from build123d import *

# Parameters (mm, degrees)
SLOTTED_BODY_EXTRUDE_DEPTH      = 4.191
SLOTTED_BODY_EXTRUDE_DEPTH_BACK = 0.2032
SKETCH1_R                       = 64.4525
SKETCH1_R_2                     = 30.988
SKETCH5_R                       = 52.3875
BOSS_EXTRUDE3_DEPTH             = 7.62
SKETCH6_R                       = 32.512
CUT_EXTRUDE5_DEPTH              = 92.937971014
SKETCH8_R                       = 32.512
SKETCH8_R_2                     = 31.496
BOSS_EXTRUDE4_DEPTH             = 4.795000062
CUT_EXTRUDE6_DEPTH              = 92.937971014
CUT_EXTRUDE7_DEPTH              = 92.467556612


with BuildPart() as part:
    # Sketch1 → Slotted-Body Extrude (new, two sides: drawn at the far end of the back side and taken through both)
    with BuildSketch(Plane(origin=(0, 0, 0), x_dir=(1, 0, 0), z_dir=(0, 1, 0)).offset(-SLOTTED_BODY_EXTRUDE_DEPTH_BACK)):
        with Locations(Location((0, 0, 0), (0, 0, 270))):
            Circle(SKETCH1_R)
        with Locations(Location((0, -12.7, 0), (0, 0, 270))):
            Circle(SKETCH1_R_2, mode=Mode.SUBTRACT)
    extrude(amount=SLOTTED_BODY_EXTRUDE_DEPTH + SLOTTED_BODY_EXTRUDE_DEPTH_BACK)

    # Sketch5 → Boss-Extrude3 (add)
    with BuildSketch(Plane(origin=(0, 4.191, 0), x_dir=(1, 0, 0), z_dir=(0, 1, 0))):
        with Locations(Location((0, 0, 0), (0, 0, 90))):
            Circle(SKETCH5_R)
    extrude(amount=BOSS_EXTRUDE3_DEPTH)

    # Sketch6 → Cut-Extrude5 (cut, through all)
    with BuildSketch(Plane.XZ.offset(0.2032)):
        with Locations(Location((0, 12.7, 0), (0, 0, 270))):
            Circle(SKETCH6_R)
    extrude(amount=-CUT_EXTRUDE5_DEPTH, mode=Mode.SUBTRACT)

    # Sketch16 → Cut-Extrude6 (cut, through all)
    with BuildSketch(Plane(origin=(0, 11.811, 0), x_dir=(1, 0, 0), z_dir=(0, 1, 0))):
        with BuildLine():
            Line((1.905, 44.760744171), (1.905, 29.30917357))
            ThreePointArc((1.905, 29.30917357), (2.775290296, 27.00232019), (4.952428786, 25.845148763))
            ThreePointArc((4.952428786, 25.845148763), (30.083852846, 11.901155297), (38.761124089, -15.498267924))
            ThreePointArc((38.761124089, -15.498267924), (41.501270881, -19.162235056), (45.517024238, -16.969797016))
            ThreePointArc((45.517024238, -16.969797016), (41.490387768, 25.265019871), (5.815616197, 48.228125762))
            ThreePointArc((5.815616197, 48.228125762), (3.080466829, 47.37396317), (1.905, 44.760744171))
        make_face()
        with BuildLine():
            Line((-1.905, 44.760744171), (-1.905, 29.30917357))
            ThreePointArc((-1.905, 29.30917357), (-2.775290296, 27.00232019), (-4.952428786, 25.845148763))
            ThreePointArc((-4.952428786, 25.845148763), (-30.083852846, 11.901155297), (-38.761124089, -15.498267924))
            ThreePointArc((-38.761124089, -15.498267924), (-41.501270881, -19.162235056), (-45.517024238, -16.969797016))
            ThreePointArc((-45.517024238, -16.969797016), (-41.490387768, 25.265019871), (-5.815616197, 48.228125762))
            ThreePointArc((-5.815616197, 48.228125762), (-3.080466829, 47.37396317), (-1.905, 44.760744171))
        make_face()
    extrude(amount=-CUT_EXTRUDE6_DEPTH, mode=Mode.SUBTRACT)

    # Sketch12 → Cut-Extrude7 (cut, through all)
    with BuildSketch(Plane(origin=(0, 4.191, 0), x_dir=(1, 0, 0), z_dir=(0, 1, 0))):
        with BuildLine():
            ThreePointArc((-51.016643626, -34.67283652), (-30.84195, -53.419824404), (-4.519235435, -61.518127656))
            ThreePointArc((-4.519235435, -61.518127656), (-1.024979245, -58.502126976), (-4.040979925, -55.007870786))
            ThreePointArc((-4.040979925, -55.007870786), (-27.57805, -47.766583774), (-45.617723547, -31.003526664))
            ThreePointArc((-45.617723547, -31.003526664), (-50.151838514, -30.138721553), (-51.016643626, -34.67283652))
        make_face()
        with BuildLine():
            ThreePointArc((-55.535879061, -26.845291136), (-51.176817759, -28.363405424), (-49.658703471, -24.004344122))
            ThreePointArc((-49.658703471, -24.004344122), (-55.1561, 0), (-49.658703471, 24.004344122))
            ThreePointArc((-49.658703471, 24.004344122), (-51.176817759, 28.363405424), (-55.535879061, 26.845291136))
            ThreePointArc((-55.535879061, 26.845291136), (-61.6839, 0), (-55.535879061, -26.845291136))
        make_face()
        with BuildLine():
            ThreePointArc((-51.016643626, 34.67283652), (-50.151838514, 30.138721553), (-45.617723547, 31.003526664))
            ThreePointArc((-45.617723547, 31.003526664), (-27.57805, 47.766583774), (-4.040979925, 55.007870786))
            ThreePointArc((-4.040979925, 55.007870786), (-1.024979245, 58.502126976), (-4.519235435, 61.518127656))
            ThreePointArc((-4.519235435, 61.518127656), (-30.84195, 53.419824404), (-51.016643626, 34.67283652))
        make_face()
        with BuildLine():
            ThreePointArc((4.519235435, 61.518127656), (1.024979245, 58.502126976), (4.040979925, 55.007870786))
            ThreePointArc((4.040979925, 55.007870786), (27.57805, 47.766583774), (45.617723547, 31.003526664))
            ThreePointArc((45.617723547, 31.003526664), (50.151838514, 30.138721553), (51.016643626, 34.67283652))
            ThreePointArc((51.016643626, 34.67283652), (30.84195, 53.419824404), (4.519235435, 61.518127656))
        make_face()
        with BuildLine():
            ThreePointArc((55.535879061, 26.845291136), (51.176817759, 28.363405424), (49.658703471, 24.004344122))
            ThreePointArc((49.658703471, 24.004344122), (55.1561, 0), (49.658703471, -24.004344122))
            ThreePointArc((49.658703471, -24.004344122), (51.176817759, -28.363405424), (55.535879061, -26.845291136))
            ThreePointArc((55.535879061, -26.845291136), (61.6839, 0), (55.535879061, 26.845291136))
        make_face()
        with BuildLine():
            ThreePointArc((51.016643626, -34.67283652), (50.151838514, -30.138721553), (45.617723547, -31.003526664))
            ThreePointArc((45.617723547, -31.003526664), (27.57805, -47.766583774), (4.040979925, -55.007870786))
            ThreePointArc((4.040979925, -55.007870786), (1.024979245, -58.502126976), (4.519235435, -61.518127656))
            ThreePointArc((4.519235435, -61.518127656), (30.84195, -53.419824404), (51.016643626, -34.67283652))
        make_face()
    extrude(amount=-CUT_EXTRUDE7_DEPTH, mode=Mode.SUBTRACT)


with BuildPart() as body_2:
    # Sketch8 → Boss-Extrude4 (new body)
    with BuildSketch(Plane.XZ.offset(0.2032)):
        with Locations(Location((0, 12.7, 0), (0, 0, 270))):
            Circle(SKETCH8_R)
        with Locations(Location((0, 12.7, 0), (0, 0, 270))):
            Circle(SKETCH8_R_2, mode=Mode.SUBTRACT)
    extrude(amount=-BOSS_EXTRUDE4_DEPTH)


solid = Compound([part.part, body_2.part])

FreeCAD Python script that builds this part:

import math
import FreeCAD as App
import Part
import Sketcher

V = App.Vector
Q = App.Units.Quantity

doc = App.newDocument("Part")
body = doc.addObject("PartDesign::Body", "Body")

# Sketch on XZ plane
sketch1 = body.newObject("Sketcher::SketchObject", "Sketch")
sketch1.AttachmentSupport = (doc.getObject("XZ_Plane"), [""])
sketch1.MapMode = "FlatFace"
sketch1.addGeometry(Part.Circle(V(0, 0, 0), V(0, 0, 1), 64.4525), False)
sketch1.addGeometry(Part.Circle(V(0, 12.7, 0), V(0, 0, 1), 30.988), False)
sketch1.addConstraint(Sketcher.Constraint("Coincident", 0, 3, -1, 1))
sketch1.addConstraint(Sketcher.Constraint("PointOnObject", 1, 3, -2))
sketch1.addConstraint(Sketcher.Constraint("Diameter", 1, Q("2.44 in")))
sketch1.addConstraint(Sketcher.Constraint("Diameter", 0, Q("5.075 in")))
sketch1.addConstraint(Sketcher.Constraint("DistanceY", -1, 1, 1, 3, Q("0.5 in")))
pad1 = body.newObject("PartDesign::Pad", "Pad")
pad1.Profile = sketch1
pad1.Type = "TwoLengths"
pad1.Length = Q("0.165 in")
pad1.Length2 = Q("0.008 in")
pad1.Reversed = True

# Sketch on XZ plane
sketch2 = body.newObject("Sketcher::SketchObject", "Sketch001")
sketch2.AttachmentSupport = (doc.getObject("XZ_Plane"), [""])
sketch2.MapMode = "FlatFace"
sketch2.AttachmentOffset = App.Placement(V(0, 0, -0.165 * 25.4), App.Rotation())
sketch2.addGeometry(Part.Circle(V(0, 0, 0), V(0, 0, 1), 52.3875), False)
sketch2.addConstraint(Sketcher.Constraint("Coincident", 0, 3, -1, 1))
sketch2.addConstraint(Sketcher.Constraint("Diameter", 0, Q("4.125 in")))
pad2 = body.newObject("PartDesign::Pad", "Pad001")
pad2.Profile = sketch2
pad2.Length = Q("0.3 in")
pad2.Reversed = True

# Sketch on XZ plane
sketch3 = body.newObject("Sketcher::SketchObject", "Sketch002")
sketch3.AttachmentSupport = (doc.getObject("XZ_Plane"), [""])
sketch3.MapMode = "FlatFace"
sketch3.AttachmentOffset = App.Placement(V(0, 0, 0.008 * 25.4), App.Rotation())
sketch3.addGeometry(Part.Circle(V(0, 12.7, 0), V(0, 0, 1), 32.512), False)
sketch3.addConstraint(Sketcher.Constraint("PointOnObject", 0, 3, -2))
sketch3.addConstraint(Sketcher.Constraint("Diameter", 0, Q("2.56 in")))
sketch3.addConstraint(Sketcher.Constraint("DistanceY", -1, 1, 0, 3, Q("0.5 in")))
pocket1 = body.newObject("PartDesign::Pocket", "Pocket")
pocket1.Profile = sketch3
pocket1.Type = "ThroughAll"

# Sketch on XZ plane
sketch4 = body.newObject("Sketcher::SketchObject", "Sketch003")
sketch4.AttachmentSupport = (doc.getObject("XZ_Plane"), [""])
sketch4.MapMode = "FlatFace"
sketch4.AttachmentOffset = App.Placement(V(0, 0, -0.465 * 25.4), App.Rotation())
sketch4.addGeometry(Part.LineSegment(V(1.905, -44.760744, 0), V(1.905, -29.309174, 0)), False)
sketch4.addGeometry(Part.ArcOfCircle(Part.Circle(V(5.3975, -29.309174, 0), V(0, 0, 1), 3.4925), math.radians(97.32147), math.radians(180)), False)
sketch4.addGeometry(Part.ArcOfCircle(Part.Circle(V(0, 12.7, 0), V(0, 0, 1), 38.862), math.radians(-82.67853), math.radians(4.12917)), False)
sketch4.addGeometry(Part.ArcOfCircle(Part.Circle(V(42.244558, 15.749746, 0), V(0, 0, 1), 3.4925), math.radians(20.446616), math.radians(184.12917)), False)
sketch4.addGeometry(Part.ArcOfCircle(Part.Circle(V(0, 0, 0), V(0, 0, 1), 48.5775), math.radians(-83.124154), math.radians(20.446616)), False)
sketch4.addGeometry(Part.ArcOfCircle(Part.Circle(V(5.3975, -44.760744, 0), V(0, 0, 1), 3.4925), math.radians(180), math.radians(276.875846)), False)
sketch4.addGeometry(Part.LineSegment(V(-1.905, -29.309174, 0), V(-1.905, -44.760744, 0)), False)
sketch4.addGeometry(Part.ArcOfCircle(Part.Circle(V(-5.3975, -44.760744, 0), V(0, 0, 1), 3.4925), math.radians(-96.875846), math.radians(0)), False)
sketch4.addGeometry(Part.ArcOfCircle(Part.Circle(V(0, 0, 0), V(0, 0, 1), 48.5775), math.radians(159.553384), math.radians(263.124154)), False)
sketch4.addGeometry(Part.ArcOfCircle(Part.Circle(V(-42.244558, 15.749746, 0), V(0, 0, 1), 3.4925), math.radians(-4.12917), math.radians(159.553384)), False)
sketch4.addGeometry(Part.ArcOfCircle(Part.Circle(V(0, 12.7, 0), V(0, 0, 1), 38.862), math.radians(175.87083), math.radians(262.67853)), False)
sketch4.addGeometry(Part.ArcOfCircle(Part.Circle(V(-5.3975, -29.309174, 0), V(0, 0, 1), 3.4925), math.radians(0), math.radians(82.67853)), False)
sketch4.addConstraint(Sketcher.Constraint("Tangent", 0, 2, 1, 2))
sketch4.addConstraint(Sketcher.Constraint("Tangent", 1, 1, 2, 1))
sketch4.addConstraint(Sketcher.Constraint("Tangent", 2, 2, 3, 2))
sketch4.addConstraint(Sketcher.Constraint("Tangent", 3, 1, 4, 2))
sketch4.addConstraint(Sketcher.Constraint("Tangent", 4, 1, 5, 2))
sketch4.addConstraint(Sketcher.Constraint("Tangent", 5, 1, 0, 1))
sketch4.addConstraint(Sketcher.Constraint("Tangent", 6, 2, 7, 2))
sketch4.addConstraint(Sketcher.Constraint("Tangent", 7, 1, 8, 2))
sketch4.addConstraint(Sketcher.Constraint("Tangent", 8, 1, 9, 2))
sketch4.addConstraint(Sketcher.Constraint("Tangent", 9, 1, 10, 1))
sketch4.addConstraint(Sketcher.Constraint("Tangent", 10, 2, 11, 2))
sketch4.addConstraint(Sketcher.Constraint("Tangent", 11, 1, 6, 1))
sketch4.addConstraint(Sketcher.Constraint("Vertical", 0))
sketch4.addConstraint(Sketcher.Constraint("Vertical", 6))
sketch4.addConstraint(Sketcher.Constraint("Coincident", 4, 3, -1, 1))
sketch4.addConstraint(Sketcher.Constraint("Coincident", 8, 3, -1, 1))
sketch4.addConstraint(Sketcher.Constraint("Coincident", 10, 3, 2, 3))
sketch4.addConstraint(Sketcher.Constraint("Equal", 1, 3))
sketch4.addConstraint(Sketcher.Constraint("Equal", 3, 5))
sketch4.addConstraint(Sketcher.Constraint("Equal", 5, 7))
sketch4.addConstraint(Sketcher.Constraint("Equal", 4, 8))
sketch4.addConstraint(Sketcher.Constraint("Equal", 7, 9))
sketch4.addConstraint(Sketcher.Constraint("Equal", 2, 10))
sketch4.addConstraint(Sketcher.Constraint("Equal", 9, 11))
sketch4.addConstraint(Sketcher.Constraint("Symmetric", 1, 3, 11, 3, -2))
sketch4.addConstraint(Sketcher.Constraint("Radius", 2, Q("1.53 in")))
sketch4.addConstraint(Sketcher.Constraint("DistanceY", -1, 1, 2, 3, Q("0.5 in")))
sketch4.addConstraint(Sketcher.Constraint("Radius", 1, Q("0.1375 in")))
sketch4.addConstraint(Sketcher.Constraint("Radius", 4, Q("1.9125 in")))
sketch4.addConstraint(Sketcher.Constraint("DistanceX", 6, 2, 5, 1, Q("0.15 in")))
pocket2 = body.newObject("PartDesign::Pocket", "Pocket001")
pocket2.Profile = sketch4
pocket2.Type = "ThroughAll"
pocket2.Reversed = True

# Sketch on XZ plane
sketch5 = body.newObject("Sketcher::SketchObject", "Sketch004")
sketch5.AttachmentSupport = (doc.getObject("XZ_Plane"), [""])
sketch5.MapMode = "FlatFace"
sketch5.AttachmentOffset = App.Placement(V(0, 0, -0.165 * 25.4), App.Rotation())
sketch5.addGeometry(Part.ArcOfCircle(Part.Circle(V(0, 0, 0), V(0, 0, 1), 61.6839), math.radians(94.201507), math.radians(145.798493)), False)
sketch5.addGeometry(Part.ArcOfCircle(Part.Circle(V(-4.280108, 58.262999, 0), V(0, 0, 1), 3.2639), math.radians(-85.798493), math.radians(94.201507)), False)
sketch5.addGeometry(Part.ArcOfCircle(Part.Circle(V(0, 0, 0), V(0, 0, 1), 55.1561), math.radians(94.201507), math.radians(145.798493)), False)
sketch5.addGeometry(Part.ArcOfCircle(Part.Circle(V(-48.317184, 32.838182, 0), V(0, 0, 1), 3.2639), math.radians(145.798493), math.radians(325.798493)), False)
sketch5.addGeometry(Part.ArcOfCircle(Part.Circle(V(-52.597291, 25.424818, 0), V(0, 0, 1), 3.2639), math.radians(-25.798493), math.radians(154.201507)), False)
sketch5.addGeometry(Part.ArcOfCircle(Part.Circle(V(0, 0, 0), V(0, 0, 1), 55.1561), math.radians(154.201507), math.radians(205.798493)), False)
sketch5.addGeometry(Part.ArcOfCircle(Part.Circle(V(-52.597291, -25.424818, 0), V(0, 0, 1), 3.2639), math.radians(-154.201507), math.radians(25.798493)), False)
sketch5.addGeometry(Part.ArcOfCircle(Part.Circle(V(0, 0, 0), V(0, 0, 1), 61.6839), math.radians(154.201507), math.radians(205.798493)), False)
sketch5.addGeometry(Part.ArcOfCircle(Part.Circle(V(-48.317184, -32.838182, 0), V(0, 0, 1), 3.2639), math.radians(34.201507), math.radians(214.201507)), False)
sketch5.addGeometry(Part.ArcOfCircle(Part.Circle(V(0, 0, 0), V(0, 0, 1), 55.1561), math.radians(-145.798493), math.radians(-94.201507)), False)
sketch5.addGeometry(Part.ArcOfCircle(Part.Circle(V(-4.280108, -58.262999, 0), V(0, 0, 1), 3.2639), math.radians(-94.201507), math.radians(85.798493)), False)
sketch5.addGeometry(Part.ArcOfCircle(Part.Circle(V(0, 0, 0), V(0, 0, 1), 61.6839), math.radians(-145.798493), math.radians(-94.201507)), False)
sketch5.addGeometry(Part.ArcOfCircle(Part.Circle(V(4.280108, -58.262999, 0), V(0, 0, 1), 3.2639), math.radians(94.201507), math.radians(274.201507)), False)
sketch5.addGeometry(Part.ArcOfCircle(Part.Circle(V(0, 0, 0), V(0, 0, 1), 55.1561), math.radians(-85.798493), math.radians(-34.201507)), False)
sketch5.addGeometry(Part.ArcOfCircle(Part.Circle(V(48.317184, -32.838182, 0), V(0, 0, 1), 3.2639), math.radians(-34.201507), math.radians(145.798493)), False)
sketch5.addGeometry(Part.ArcOfCircle(Part.Circle(V(0, 0, 0), V(0, 0, 1), 61.6839), math.radians(-85.798493), math.radians(-34.201507)), False)
sketch5.addGeometry(Part.ArcOfCircle(Part.Circle(V(52.597291, -25.424818, 0), V(0, 0, 1), 3.2639), math.radians(154.201507), math.radians(334.201507)), False)
sketch5.addGeometry(Part.ArcOfCircle(Part.Circle(V(0, 0, 0), V(0, 0, 1), 55.1561), math.radians(-25.798493), math.radians(25.798493)), False)
sketch5.addGeometry(Part.ArcOfCircle(Part.Circle(V(52.597291, 25.424818, 0), V(0, 0, 1), 3.2639), math.radians(25.798493), math.radians(205.798493)), False)
sketch5.addGeometry(Part.ArcOfCircle(Part.Circle(V(0, 0, 0), V(0, 0, 1), 61.6839), math.radians(-25.798493), math.radians(25.798493)), False)
sketch5.addGeometry(Part.ArcOfCircle(Part.Circle(V(48.317184, 32.838182, 0), V(0, 0, 1), 3.2639), math.radians(-145.798493), math.radians(34.201507)), False)
sketch5.addGeometry(Part.ArcOfCircle(Part.Circle(V(0, 0, 0), V(0, 0, 1), 55.1561), math.radians(34.201507), math.radians(85.798493)), False)
sketch5.addGeometry(Part.ArcOfCircle(Part.Circle(V(4.280108, 58.262999, 0), V(0, 0, 1), 3.2639), math.radians(85.798493), math.radians(265.798493)), False)
sketch5.addGeometry(Part.ArcOfCircle(Part.Circle(V(0, 0, 0), V(0, 0, 1), 61.6839), math.radians(34.201507), math.radians(85.798493)), False)
sketch5.addConstraint(Sketcher.Constraint("Tangent", 0, 1, 1, 2))
sketch5.addConstraint(Sketcher.Constraint("Tangent", 1, 1, 2, 1))
sketch5.addConstraint(Sketcher.Constraint("Tangent", 2, 2, 3, 2))
sketch5.addConstraint(Sketcher.Constraint("Tangent", 3, 1, 0, 2))
sketch5.addConstraint(Sketcher.Constraint("Tangent", 4, 1, 5, 1))
sketch5.addConstraint(Sketcher.Constraint("Tangent", 5, 2, 6, 2))
sketch5.addConstraint(Sketcher.Constraint("Tangent", 6, 1, 7, 2))
sketch5.addConstraint(Sketcher.Constraint("Tangent", 7, 1, 4, 2))
sketch5.addConstraint(Sketcher.Constraint("Tangent", 8, 1, 9, 1))
sketch5.addConstraint(Sketcher.Constraint("Tangent", 9, 2, 10, 2))
sketch5.addConstraint(Sketcher.Constraint("Tangent", 10, 1, 11, 2))
sketch5.addConstraint(Sketcher.Constraint("Tangent", 11, 1, 8, 2))
sketch5.addConstraint(Sketcher.Constraint("Tangent", 12, 1, 13, 1))
sketch5.addConstraint(Sketcher.Constraint("Tangent", 13, 2, 14, 2))
sketch5.addConstraint(Sketcher.Constraint("Tangent", 14, 1, 15, 2))
sketch5.addConstraint(Sketcher.Constraint("Tangent", 15, 1, 12, 2))
sketch5.addConstraint(Sketcher.Constraint("Tangent", 16, 1, 17, 1))
sketch5.addConstraint(Sketcher.Constraint("Tangent", 17, 2, 18, 2))
sketch5.addConstraint(Sketcher.Constraint("Tangent", 18, 1, 19, 2))
sketch5.addConstraint(Sketcher.Constraint("Tangent", 19, 1, 16, 2))
sketch5.addConstraint(Sketcher.Constraint("Tangent", 20, 1, 21, 1))
sketch5.addConstraint(Sketcher.Constraint("Tangent", 21, 2, 22, 2))
sketch5.addConstraint(Sketcher.Constraint("Tangent", 22, 1, 23, 2))
sketch5.addConstraint(Sketcher.Constraint("Tangent", 23, 1, 20, 2))
sketch5.addConstraint(Sketcher.Constraint("Coincident", 0, 3, -1, 1))
sketch5.addConstraint(Sketcher.Constraint("Coincident", 2, 3, -1, 1))
sketch5.addConstraint(Sketcher.Constraint("Coincident", 5, 3, -1, 1))
sketch5.addConstraint(Sketcher.Constraint("Coincident", 7, 3, -1, 1))
sketch5.addConstraint(Sketcher.Constraint("Coincident", 9, 3, -1, 1))
sketch5.addConstraint(Sketcher.Constraint("Coincident", 11, 3, -1, 1))
sketch5.addConstraint(Sketcher.Constraint("Coincident", 13, 3, -1, 1))
sketch5.addConstraint(Sketcher.Constraint("Coincident", 15, 3, -1, 1))
sketch5.addConstraint(Sketcher.Constraint("Coincident", 17, 3, -1, 1))
sketch5.addConstraint(Sketcher.Constraint("Coincident", 19, 3, -1, 1))
sketch5.addConstraint(Sketcher.Constraint("Coincident", 21, 3, -1, 1))
sketch5.addConstraint(Sketcher.Constraint("Coincident", 23, 3, -1, 1))
sketch5.addConstraint(Sketcher.Constraint("Equal", 3, 4))
sketch5.addConstraint(Sketcher.Constraint("Equal", 2, 5))
sketch5.addConstraint(Sketcher.Constraint("Equal", 6, 8))
sketch5.addConstraint(Sketcher.Constraint("Equal", 5, 9))
sketch5.addConstraint(Sketcher.Constraint("Equal", 10, 12))
sketch5.addConstraint(Sketcher.Constraint("Equal", 9, 13))
sketch5.addConstraint(Sketcher.Constraint("Equal", 14, 16))
sketch5.addConstraint(Sketcher.Constraint("Equal", 13, 17))
sketch5.addConstraint(Sketcher.Constraint("Equal", 18, 20))
sketch5.addConstraint(Sketcher.Constraint("Equal", 17, 21))
sketch5.addConstraint(Sketcher.Constraint("Horizontal", 10, 3, 12, 3))
sketch5.addConstraint(Sketcher.Constraint("Horizontal", 8, 3, 14, 3))
sketch5.addConstraint(Sketcher.Constraint("Horizontal", 6, 3, 16, 3))
sketch5.addConstraint(Sketcher.Constraint("Horizontal", 4, 3, 18, 3))
sketch5.addConstraint(Sketcher.Constraint("Horizontal", 3, 3, 20, 3))
sketch5.addConstraint(Sketcher.Constraint("Horizontal", 1, 3, 22, 3))
sketch5.addConstraint(Sketcher.Constraint("Vertical", 4, 3, 6, 3))
sketch5.addConstraint(Sketcher.Constraint("Vertical", 3, 3, 8, 3))
sketch5.addConstraint(Sketcher.Constraint("Vertical", 1, 3, 10, 3))
sketch5.addConstraint(Sketcher.Constraint("Radius", 0, Q("2.4285 in")))
sketch5.addConstraint(Sketcher.Constraint("Radius", 1, Q("0.1285 in")))
sketch5.addConstraint(Sketcher.Constraint("DistanceY", -1, 1, 1, 3, Q("58.262999 mm")))
sketch5.addConstraint(Sketcher.Constraint("DistanceY", 6, 3, 3, 3, Q("58.262999 mm")))
sketch5.addConstraint(Sketcher.Constraint("DistanceY", 2, 2, 0, 1, Q("30.514601 mm")))
pocket3 = body.newObject("PartDesign::Pocket", "Pocket002")
pocket3.Profile = sketch5
pocket3.Type = "ThroughAll"
pocket3.Reversed = True
body2 = doc.addObject("PartDesign::Body", "Body001")

# Sketch on XZ plane
sketch6 = body2.newObject("Sketcher::SketchObject", "Sketch005")
sketch6.AttachmentSupport = (doc.getObject("XZ_Plane001"), [""])
sketch6.MapMode = "FlatFace"
sketch6.AttachmentOffset = App.Placement(V(0, 0, 0.008 * 25.4), App.Rotation())
sketch6.addGeometry(Part.Circle(V(0, 12.7, 0), V(0, 0, 1), 32.512), False)
sketch6.addGeometry(Part.Circle(V(0, 12.7, 0), V(0, 0, 1), 31.496), False)
sketch6.addConstraint(Sketcher.Constraint("Coincident", 1, 3, 0, 3))
sketch6.addConstraint(Sketcher.Constraint("PointOnObject", 0, 3, -2))
sketch6.addConstraint(Sketcher.Constraint("Diameter", 0, Q("2.56 in")))
sketch6.addConstraint(Sketcher.Constraint("Diameter", 1, Q("2.48 in")))
sketch6.addConstraint(Sketcher.Constraint("DistanceY", -1, 1, 0, 3, Q("0.5 in")))
pad3 = body2.newObject("PartDesign::Pad", "Pad002")
pad3.Profile = sketch6
pad3.Length = 4.795
pad3.Reversed = True

doc.recompute()
